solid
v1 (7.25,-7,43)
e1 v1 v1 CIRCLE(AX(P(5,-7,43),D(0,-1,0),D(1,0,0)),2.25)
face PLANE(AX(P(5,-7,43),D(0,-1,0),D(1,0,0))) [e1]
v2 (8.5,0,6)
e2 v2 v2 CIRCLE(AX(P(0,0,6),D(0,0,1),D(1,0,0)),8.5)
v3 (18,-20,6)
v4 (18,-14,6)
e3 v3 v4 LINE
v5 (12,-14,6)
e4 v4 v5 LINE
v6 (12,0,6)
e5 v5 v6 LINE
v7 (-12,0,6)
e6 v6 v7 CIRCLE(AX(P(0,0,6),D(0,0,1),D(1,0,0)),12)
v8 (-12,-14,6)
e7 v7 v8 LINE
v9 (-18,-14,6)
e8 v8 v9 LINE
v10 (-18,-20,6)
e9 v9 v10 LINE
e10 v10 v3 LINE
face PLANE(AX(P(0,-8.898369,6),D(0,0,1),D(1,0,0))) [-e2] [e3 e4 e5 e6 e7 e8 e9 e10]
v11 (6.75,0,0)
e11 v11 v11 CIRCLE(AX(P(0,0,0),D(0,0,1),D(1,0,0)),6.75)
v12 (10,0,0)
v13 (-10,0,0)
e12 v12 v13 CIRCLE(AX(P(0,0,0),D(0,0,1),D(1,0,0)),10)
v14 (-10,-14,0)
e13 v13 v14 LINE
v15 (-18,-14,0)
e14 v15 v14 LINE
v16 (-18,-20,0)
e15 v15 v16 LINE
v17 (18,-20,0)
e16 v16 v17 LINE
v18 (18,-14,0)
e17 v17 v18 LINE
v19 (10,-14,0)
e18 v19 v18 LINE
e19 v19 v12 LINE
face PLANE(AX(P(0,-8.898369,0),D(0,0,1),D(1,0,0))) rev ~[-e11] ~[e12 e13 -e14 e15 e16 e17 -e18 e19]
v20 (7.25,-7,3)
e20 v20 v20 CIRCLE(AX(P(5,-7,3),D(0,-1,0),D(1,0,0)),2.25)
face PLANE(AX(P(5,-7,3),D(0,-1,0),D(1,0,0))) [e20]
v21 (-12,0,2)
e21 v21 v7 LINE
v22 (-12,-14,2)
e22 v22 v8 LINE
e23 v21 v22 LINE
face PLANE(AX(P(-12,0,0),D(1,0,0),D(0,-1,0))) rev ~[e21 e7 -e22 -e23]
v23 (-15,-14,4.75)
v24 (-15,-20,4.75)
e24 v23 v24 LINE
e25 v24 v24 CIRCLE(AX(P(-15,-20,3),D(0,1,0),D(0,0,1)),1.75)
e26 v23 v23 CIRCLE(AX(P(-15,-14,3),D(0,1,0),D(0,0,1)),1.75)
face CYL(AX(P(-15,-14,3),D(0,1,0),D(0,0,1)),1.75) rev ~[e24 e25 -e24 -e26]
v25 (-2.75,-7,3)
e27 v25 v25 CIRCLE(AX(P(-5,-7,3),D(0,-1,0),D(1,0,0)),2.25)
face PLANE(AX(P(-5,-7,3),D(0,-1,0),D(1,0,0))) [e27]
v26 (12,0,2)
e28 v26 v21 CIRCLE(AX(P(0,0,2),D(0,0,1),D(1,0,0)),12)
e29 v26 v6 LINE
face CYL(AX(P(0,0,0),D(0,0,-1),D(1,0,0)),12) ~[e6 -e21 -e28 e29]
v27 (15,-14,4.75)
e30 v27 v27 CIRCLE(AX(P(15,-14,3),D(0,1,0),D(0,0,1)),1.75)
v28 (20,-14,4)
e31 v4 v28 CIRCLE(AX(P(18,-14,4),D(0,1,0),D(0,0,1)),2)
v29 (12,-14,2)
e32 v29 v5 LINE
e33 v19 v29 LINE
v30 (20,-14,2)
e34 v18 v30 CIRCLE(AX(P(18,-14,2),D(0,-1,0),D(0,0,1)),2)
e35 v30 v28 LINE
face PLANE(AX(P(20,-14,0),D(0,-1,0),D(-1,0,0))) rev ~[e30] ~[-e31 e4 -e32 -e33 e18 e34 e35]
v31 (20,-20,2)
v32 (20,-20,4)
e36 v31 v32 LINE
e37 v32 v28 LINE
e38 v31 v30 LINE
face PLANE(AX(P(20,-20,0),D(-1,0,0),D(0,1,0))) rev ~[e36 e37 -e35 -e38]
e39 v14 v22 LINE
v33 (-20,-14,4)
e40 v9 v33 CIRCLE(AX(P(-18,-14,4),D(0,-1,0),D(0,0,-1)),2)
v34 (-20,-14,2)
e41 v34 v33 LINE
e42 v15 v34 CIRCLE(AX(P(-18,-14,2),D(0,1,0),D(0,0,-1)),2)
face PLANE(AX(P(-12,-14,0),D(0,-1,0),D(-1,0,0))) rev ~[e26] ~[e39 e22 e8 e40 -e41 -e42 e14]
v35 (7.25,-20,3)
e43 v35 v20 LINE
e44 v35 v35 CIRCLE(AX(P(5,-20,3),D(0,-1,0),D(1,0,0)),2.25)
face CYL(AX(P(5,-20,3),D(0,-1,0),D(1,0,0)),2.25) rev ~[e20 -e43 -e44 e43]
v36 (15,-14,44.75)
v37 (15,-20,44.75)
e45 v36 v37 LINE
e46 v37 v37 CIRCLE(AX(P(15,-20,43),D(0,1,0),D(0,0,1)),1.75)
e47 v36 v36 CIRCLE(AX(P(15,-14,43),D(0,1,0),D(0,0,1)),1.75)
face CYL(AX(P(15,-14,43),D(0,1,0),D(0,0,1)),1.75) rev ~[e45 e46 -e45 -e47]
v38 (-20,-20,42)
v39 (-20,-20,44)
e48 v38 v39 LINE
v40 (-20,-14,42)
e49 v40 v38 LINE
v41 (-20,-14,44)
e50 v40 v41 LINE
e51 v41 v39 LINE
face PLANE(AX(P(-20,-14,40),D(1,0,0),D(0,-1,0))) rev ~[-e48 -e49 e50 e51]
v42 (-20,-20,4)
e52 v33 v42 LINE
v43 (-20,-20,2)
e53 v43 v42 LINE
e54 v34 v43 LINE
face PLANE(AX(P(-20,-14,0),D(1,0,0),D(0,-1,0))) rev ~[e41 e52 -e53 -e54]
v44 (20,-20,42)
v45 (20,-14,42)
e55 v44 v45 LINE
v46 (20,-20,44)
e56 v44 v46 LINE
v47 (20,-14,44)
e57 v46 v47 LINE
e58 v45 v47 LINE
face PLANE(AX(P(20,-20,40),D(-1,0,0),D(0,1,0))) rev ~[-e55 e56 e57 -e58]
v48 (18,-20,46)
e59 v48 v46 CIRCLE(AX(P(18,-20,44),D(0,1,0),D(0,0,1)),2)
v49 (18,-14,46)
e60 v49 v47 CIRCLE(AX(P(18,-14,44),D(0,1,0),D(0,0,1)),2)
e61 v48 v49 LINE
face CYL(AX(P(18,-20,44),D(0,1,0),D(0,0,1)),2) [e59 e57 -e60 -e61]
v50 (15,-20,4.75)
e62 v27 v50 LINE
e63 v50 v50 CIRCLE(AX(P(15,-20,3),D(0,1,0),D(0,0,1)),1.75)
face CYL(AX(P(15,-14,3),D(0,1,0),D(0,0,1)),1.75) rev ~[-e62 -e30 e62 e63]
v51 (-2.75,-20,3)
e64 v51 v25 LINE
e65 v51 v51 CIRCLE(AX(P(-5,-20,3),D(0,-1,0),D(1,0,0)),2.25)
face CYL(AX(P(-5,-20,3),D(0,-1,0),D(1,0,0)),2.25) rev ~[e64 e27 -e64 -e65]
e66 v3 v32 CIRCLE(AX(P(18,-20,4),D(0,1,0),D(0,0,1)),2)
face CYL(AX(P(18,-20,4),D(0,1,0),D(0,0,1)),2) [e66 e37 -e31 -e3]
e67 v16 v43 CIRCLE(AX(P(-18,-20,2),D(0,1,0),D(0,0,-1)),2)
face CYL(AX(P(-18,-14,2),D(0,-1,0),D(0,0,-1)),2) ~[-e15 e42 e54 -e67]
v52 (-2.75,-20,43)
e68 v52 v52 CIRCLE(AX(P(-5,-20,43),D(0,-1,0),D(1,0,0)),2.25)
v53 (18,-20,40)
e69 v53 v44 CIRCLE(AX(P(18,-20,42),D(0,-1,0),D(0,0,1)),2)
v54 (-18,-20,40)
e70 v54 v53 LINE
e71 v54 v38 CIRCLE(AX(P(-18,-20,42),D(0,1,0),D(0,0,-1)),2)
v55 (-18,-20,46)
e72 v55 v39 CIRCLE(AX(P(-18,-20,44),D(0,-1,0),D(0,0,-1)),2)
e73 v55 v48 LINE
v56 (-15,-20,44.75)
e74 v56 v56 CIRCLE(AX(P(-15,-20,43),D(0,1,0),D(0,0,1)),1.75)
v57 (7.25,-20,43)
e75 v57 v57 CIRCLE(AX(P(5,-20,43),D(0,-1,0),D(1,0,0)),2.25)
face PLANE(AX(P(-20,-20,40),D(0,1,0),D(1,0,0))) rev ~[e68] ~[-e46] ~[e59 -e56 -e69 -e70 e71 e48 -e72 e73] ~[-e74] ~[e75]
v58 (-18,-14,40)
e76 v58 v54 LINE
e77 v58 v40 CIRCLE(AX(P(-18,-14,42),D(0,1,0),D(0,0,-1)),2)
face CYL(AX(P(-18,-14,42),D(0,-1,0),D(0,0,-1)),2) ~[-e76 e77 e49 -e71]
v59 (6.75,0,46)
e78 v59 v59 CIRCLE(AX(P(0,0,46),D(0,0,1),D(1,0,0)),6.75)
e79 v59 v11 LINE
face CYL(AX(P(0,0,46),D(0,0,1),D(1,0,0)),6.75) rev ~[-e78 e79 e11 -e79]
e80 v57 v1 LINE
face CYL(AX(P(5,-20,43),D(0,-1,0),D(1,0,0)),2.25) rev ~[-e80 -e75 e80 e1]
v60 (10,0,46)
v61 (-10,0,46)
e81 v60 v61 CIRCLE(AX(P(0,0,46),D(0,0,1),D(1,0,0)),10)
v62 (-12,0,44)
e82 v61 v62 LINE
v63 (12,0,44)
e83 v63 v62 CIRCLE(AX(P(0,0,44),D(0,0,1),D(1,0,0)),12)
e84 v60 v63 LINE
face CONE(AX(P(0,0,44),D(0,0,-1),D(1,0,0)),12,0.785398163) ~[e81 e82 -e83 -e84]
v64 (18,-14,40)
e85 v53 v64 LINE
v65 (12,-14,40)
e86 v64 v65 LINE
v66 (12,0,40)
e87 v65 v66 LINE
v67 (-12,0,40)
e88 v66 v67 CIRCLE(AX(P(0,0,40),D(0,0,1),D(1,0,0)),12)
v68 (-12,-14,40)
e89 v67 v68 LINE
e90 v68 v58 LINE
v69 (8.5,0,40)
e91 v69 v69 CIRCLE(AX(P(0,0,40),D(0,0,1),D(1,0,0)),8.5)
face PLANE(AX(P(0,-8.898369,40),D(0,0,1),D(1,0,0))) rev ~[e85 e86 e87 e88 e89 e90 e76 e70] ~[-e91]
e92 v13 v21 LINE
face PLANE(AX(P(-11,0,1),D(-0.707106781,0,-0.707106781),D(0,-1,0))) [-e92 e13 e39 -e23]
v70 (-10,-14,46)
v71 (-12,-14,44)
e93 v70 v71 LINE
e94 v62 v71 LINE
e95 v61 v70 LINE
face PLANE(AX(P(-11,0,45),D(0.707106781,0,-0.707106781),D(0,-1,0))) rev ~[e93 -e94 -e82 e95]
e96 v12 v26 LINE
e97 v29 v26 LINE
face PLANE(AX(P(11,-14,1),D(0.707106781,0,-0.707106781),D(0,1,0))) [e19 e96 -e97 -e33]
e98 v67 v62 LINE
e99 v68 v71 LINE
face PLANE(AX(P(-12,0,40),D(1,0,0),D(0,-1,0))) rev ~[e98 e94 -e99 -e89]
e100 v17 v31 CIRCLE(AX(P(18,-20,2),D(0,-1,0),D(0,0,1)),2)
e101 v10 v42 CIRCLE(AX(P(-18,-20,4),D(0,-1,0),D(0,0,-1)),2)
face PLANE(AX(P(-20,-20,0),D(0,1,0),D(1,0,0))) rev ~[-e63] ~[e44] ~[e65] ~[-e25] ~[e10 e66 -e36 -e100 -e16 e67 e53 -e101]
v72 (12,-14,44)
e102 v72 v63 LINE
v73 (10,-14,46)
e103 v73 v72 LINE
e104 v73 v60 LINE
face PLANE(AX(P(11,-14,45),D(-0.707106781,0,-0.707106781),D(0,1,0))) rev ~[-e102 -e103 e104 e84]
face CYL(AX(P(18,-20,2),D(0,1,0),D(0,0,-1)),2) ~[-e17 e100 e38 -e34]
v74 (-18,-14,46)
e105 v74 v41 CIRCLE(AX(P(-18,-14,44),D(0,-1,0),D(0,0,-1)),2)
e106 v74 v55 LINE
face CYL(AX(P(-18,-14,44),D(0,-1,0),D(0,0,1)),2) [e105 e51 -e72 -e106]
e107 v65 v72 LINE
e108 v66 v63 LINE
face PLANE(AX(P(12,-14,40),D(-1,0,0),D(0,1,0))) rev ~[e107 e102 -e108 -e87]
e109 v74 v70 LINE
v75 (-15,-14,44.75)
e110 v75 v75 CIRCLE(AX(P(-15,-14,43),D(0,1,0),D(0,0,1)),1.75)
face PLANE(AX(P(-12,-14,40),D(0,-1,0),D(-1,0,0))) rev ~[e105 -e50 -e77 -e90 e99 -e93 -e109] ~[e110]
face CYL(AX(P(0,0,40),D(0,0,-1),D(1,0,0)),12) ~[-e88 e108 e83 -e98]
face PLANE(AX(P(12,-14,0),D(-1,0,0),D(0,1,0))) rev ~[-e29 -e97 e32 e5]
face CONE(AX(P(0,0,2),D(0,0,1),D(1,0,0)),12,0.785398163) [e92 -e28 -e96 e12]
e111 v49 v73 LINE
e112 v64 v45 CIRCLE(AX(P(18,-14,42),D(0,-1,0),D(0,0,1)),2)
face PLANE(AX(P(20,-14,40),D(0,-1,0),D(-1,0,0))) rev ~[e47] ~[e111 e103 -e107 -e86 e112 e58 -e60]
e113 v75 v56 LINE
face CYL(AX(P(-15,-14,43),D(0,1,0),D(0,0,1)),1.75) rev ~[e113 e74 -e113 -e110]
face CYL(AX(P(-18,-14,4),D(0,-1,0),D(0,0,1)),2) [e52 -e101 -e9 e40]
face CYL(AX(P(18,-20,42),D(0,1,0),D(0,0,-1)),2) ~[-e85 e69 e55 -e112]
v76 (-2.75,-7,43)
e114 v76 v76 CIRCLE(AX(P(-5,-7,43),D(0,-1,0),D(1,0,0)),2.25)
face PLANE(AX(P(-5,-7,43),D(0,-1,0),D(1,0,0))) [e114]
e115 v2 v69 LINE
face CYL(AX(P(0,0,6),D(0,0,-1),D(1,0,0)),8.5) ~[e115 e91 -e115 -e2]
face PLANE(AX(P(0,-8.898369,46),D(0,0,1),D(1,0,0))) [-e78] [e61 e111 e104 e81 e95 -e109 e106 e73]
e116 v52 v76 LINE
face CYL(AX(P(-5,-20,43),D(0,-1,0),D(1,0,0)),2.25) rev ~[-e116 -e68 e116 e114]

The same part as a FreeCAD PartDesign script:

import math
import FreeCAD as App
import Part
import Sketcher


def edges_at(feature, points):
    """Names of the edges that pass closest to the given points."""
    edges = feature.Shape.Edges
    near = lambda p: min(range(len(edges)), key=lambda i: edges[i].distToShape(Part.Vertex(*p))[0])
    return sorted({f"Edge{near(p) + 1}" for p in points})

doc = App.newDocument("Part")
body = doc.addObject("PartDesign::Body", "Body")

# Sketch on XY plane
sketch1 = body.newObject("Sketcher::SketchObject", "Sketch")
sketch1.AttachmentSupport = (doc.getObject("XY_Plane"), [""])
sketch1.MapMode = "FlatFace"
sketch1.addGeometry([
    Part.LineSegment(App.Vector(-12, 0, 0), App.Vector(-12, -14, 0)),  # 0
    Part.LineSegment(App.Vector(-12, -14, 0), App.Vector(-20, -14, 0)),  # 1
    Part.LineSegment(App.Vector(-20, -14, 0), App.Vector(-20, -20, 0)),  # 2
    Part.LineSegment(App.Vector(-20, -20, 0), App.Vector(20, -20, 0)),  # 3
    Part.LineSegment(App.Vector(20, -20, 0), App.Vector(20, -14, 0)),  # 4
    Part.LineSegment(App.Vector(20, -14, 0), App.Vector(12, -14, 0)),  # 5
    Part.LineSegment(App.Vector(12, -14, 0), App.Vector(12, 0, 0)),  # 6
    Part.ArcOfCircle(Part.Circle(App.Vector(0, 0, 0), App.Vector(0, 0, 1), 12), math.radians(0), math.radians(180)),  # 7
], False)
sketch1.addConstraint([
    Sketcher.Constraint("Coincident", 0, 2, 1, 1),
    Sketcher.Constraint("Coincident", 1, 2, 2, 1),
    Sketcher.Constraint("Coincident", 2, 2, 3, 1),
    Sketcher.Constraint("Coincident", 3, 2, 4, 1),
    Sketcher.Constraint("Coincident", 4, 2, 5, 1),
    Sketcher.Constraint("Coincident", 5, 2, 6, 1),
    Sketcher.Constraint("Tangent", 6, 2, 7, 1),
    Sketcher.Constraint("Tangent", 7, 2, 0, 1),
    Sketcher.Constraint("Vertical", 0),
    Sketcher.Constraint("Horizontal", 1),
    Sketcher.Constraint("Vertical", 2),
    Sketcher.Constraint("Horizontal", 3),
    Sketcher.Constraint("Vertical", 4),
    Sketcher.Constraint("Horizontal", 5),
    Sketcher.Constraint("Vertical", 6),
    Sketcher.Constraint("Coincident", 7, 3, -1, 1),
    Sketcher.Constraint("Symmetric", 1, 2, 4, 2, -2),
    Sketcher.Constraint("Radius", 7, 12.0),
    Sketcher.Constraint("DistanceX", 1, 2, 1, 1, 8.0),
    Sketcher.Constraint("DistanceY", 0, 2, 0, 1, 14.0),
    Sketcher.Constraint("DistanceY", 2, 2, 2, 1, 6.0),
])
pad1 = body.newObject("PartDesign::Pad", "Pad")
pad1.Profile = sketch1
pad1.Length = 6

# Sketch on XY plane
sketch2 = body.newObject("Sketcher::SketchObject", "Sketch001")
sketch2.AttachmentSupport = (doc.getObject("XY_Plane"), [""])
sketch2.MapMode = "FlatFace"
sketch2.AttachmentOffset = App.Placement(App.Vector(0, 0, 6), App.Rotation())
sketch2.addGeometry(Part.Circle(App.Vector(0, 0, 0), App.Vector(0, 0, 1), 8), False)
sketch2.addConstraint([
    Sketcher.Constraint("Coincident", 0, 3, -1, 1),
    Sketcher.Constraint("Diameter", 0, 17.0),
])
pad2 = body.newObject("PartDesign::Pad", "Pad001")
pad2.Profile = sketch2
pad2.Length = 34

# Sketch on XY plane
sketch3 = body.newObject("Sketcher::SketchObject", "Sketch002")
sketch3.AttachmentSupport = (doc.getObject("XY_Plane"), [""])
sketch3.MapMode = "FlatFace"
sketch3.AttachmentOffset = App.Placement(App.Vector(0, 0, 40), App.Rotation())
sketch3.addGeometry([
    Part.LineSegment(App.Vector(-12, 0, 0), App.Vector(-12, -14, 0)),  # 0
    Part.LineSegment(App.Vector(-12, -14, 0), App.Vector(-20, -14, 0)),  # 1
    Part.LineSegment(App.Vector(-20, -14, 0), App.Vector(-20, -20, 0)),  # 2
    Part.LineSegment(App.Vector(-20, -20, 0), App.Vector(20, -20, 0)),  # 3
    Part.LineSegment(App.Vector(20, -20, 0), App.Vector(20, -14, 0)),  # 4
    Part.LineSegment(App.Vector(20, -14, 0), App.Vector(12, -14, 0)),  # 5
    Part.LineSegment(App.Vector(12, -14, 0), App.Vector(12, 0, 0)),  # 6
    Part.ArcOfCircle(Part.Circle(App.Vector(0, 0, 0), App.Vector(0, 0, 1), 12), math.radians(0), math.radians(180)),  # 7
], False)
sketch3.addConstraint([
    Sketcher.Constraint("Coincident", 0, 2, 1, 1),
    Sketcher.Constraint("Coincident", 1, 2, 2, 1),
    Sketcher.Constraint("Coincident", 2, 2, 3, 1),
    Sketcher.Constraint("Coincident", 3, 2, 4, 1),
    Sketcher.Constraint("Coincident", 4, 2, 5, 1),
    Sketcher.Constraint("Coincident", 5, 2, 6, 1),
    Sketcher.Constraint("Tangent", 6, 2, 7, 1),
    Sketcher.Constraint("Tangent", 7, 2, 0, 1),
    Sketcher.Constraint("Vertical", 0),
    Sketcher.Constraint("Horizontal", 1),
    Sketcher.Constraint("Vertical", 2),
    Sketcher.Constraint("Horizontal", 3),
    Sketcher.Constraint("Vertical", 4),
    Sketcher.Constraint("Horizontal", 5),
    Sketcher.Constraint("Vertical", 6),
    Sketcher.Constraint("Coincident", 7, 3, -1, 1),
    Sketcher.Constraint("Symmetric", 1, 2, 4, 2, -2),
    Sketcher.Constraint("Radius", 7, 12.0),
    Sketcher.Constraint("DistanceX", 1, 2, 1, 1, 8.0),
    Sketcher.Constraint("DistanceY", 0, 2, 0, 1, 14.0),
    Sketcher.Constraint("DistanceY", 2, 2, 2, 1, 6.0),
])
pad3 = body.newObject("PartDesign::Pad", "Pad002")
pad3.Profile = sketch3
pad3.Length = 6

# Sketch on XY plane
sketch4 = body.newObject("Sketcher::SketchObject", "Sketch003")
sketch4.AttachmentSupport = (doc.getObject("XY_Plane"), [""])
sketch4.MapMode = "FlatFace"
sketch4.AttachmentOffset = App.Placement(App.Vector(0, 0, 46), App.Rotation())
sketch4.addGeometry(Part.Circle(App.Vector(0, 0, 0), App.Vector(0, 0, 1), 7), False)
sketch4.addConstraint([
    Sketcher.Constraint("Coincident", 0, 3, -1, 1),
    Sketcher.Constraint("Diameter", 0, 13.5),
])
pocket1 = body.newObject("PartDesign::Pocket", "Pocket")
pocket1.Profile = sketch4
pocket1.Type = "ThroughAll"

# Sketch on XZ plane
sketch5 = body.newObject("Sketcher::SketchObject", "Sketch004")
sketch5.AttachmentSupport = (doc.getObject("XZ_Plane"), [""])
sketch5.MapMode = "FlatFace"
sketch5.AttachmentOffset = App.Placement(App.Vector(0, 0, 20), App.Rotation())
sketch5.addGeometry([
    Part.Circle(App.Vector(-5, 43, 0), App.Vector(0, 0, 1), 2.2),
    Part.Circle(App.Vector(5, 43, 0), App.Vector(0, 0, 1), 2.2),
    Part.Circle(App.Vector(-5, 3, 0), App.Vector(0, 0, 1), 2.2),
    Part.Circle(App.Vector(5, 3, 0), App.Vector(0, 0, 1), 2.2),
], False)
sketch5.addConstraint([
    Sketcher.Constraint("Equal", 0, 1),
    Sketcher.Constraint("Equal", 1, 2),
    Sketcher.Constraint("Equal", 2, 3),
    Sketcher.Constraint("Symmetric", 0, 3, 1, 3, -2),
    Sketcher.Constraint("Symmetric", 2, 3, 3, 3, -2),
    Sketcher.Constraint("Vertical", 0, 3, 2, 3),
    Sketcher.Constraint("Diameter", 0, 4.5),
    Sketcher.Constraint("DistanceX", 0, 3, -1, 1, 5.0),
    Sketcher.Constraint("DistanceY", -1, 1, 0, 3, 43.0),
    Sketcher.Constraint("DistanceY", -1, 1, 2, 3, 3.0),
])
pocket2 = body.newObject("PartDesign::Pocket", "Pocket001")
pocket2.Profile = sketch5
pocket2.Length = 13

# Sketch on XZ plane
sketch6 = body.newObject("Sketcher::SketchObject", "Sketch005")
sketch6.AttachmentSupport = (doc.getObject("XZ_Plane"), [""])
sketch6.MapMode = "FlatFace"
sketch6.AttachmentOffset = App.Placement(App.Vector(0, 0, 14), App.Rotation())
sketch6.addGeometry([
    Part.Circle(App.Vector(15, 43, 0), App.Vector(0, 0, 1), 1.8),
    Part.Circle(App.Vector(-15, 43, 0), App.Vector(0, 0, 1), 1.8),
    Part.Circle(App.Vector(15, 3, 0), App.Vector(0, 0, 1), 1.8),
    Part.Circle(App.Vector(-15, 3, 0), App.Vector(0, 0, 1), 1.8),
], False)
sketch6.addConstraint([
    Sketcher.Constraint("Equal", 0, 1),
    Sketcher.Constraint("Equal", 1, 2),
    Sketcher.Constraint("Equal", 2, 3),
    Sketcher.Constraint("Symmetric", 0, 3, 1, 3, -2),
    Sketcher.Constraint("Symmetric", 2, 3, 3, 3, -2),
    Sketcher.Constraint("Vertical", 0, 3, 2, 3),
    Sketcher.Constraint("Diameter", 0, 3.5),
    Sketcher.Constraint("DistanceX", -1, 1, 0, 3, 15.0),
    Sketcher.Constraint("DistanceY", -1, 1, 0, 3, 43.0),
    Sketcher.Constraint("DistanceY", -1, 1, 2, 3, 3.0),
])
pocket3 = body.newObject("PartDesign::Pocket", "Pocket002")
pocket3.Profile = sketch6
pocket3.Type = "ThroughAll"
pocket3.Reversed = True
doc.recompute()

fillet = body.newObject("PartDesign::Fillet", "Fillet")
fillet.Base = (pocket3, edges_at(pocket3, [
    (20, -17, 0),
    (-20, -17, 0),
    (20, -17, 6),
    (-20, -17, 40),
    (20, -17, 40),
    (-20, -17, 46),
    (20, -17, 46),
    (-20, -17, 6),
]))
fillet.Radius = 2
doc.recompute()

chamfer = body.newObject("PartDesign::Chamfer", "Chamfer")
chamfer.Base = (fillet, edges_at(fillet, [
    (-12, -7, 0),
    (0, 12, 0),
    (12, -7, 0),
    (12, -7, 46),
    (0, 12, 46),
    (-12, -7, 46),
]))
chamfer.Size = 2

doc.recompute()
